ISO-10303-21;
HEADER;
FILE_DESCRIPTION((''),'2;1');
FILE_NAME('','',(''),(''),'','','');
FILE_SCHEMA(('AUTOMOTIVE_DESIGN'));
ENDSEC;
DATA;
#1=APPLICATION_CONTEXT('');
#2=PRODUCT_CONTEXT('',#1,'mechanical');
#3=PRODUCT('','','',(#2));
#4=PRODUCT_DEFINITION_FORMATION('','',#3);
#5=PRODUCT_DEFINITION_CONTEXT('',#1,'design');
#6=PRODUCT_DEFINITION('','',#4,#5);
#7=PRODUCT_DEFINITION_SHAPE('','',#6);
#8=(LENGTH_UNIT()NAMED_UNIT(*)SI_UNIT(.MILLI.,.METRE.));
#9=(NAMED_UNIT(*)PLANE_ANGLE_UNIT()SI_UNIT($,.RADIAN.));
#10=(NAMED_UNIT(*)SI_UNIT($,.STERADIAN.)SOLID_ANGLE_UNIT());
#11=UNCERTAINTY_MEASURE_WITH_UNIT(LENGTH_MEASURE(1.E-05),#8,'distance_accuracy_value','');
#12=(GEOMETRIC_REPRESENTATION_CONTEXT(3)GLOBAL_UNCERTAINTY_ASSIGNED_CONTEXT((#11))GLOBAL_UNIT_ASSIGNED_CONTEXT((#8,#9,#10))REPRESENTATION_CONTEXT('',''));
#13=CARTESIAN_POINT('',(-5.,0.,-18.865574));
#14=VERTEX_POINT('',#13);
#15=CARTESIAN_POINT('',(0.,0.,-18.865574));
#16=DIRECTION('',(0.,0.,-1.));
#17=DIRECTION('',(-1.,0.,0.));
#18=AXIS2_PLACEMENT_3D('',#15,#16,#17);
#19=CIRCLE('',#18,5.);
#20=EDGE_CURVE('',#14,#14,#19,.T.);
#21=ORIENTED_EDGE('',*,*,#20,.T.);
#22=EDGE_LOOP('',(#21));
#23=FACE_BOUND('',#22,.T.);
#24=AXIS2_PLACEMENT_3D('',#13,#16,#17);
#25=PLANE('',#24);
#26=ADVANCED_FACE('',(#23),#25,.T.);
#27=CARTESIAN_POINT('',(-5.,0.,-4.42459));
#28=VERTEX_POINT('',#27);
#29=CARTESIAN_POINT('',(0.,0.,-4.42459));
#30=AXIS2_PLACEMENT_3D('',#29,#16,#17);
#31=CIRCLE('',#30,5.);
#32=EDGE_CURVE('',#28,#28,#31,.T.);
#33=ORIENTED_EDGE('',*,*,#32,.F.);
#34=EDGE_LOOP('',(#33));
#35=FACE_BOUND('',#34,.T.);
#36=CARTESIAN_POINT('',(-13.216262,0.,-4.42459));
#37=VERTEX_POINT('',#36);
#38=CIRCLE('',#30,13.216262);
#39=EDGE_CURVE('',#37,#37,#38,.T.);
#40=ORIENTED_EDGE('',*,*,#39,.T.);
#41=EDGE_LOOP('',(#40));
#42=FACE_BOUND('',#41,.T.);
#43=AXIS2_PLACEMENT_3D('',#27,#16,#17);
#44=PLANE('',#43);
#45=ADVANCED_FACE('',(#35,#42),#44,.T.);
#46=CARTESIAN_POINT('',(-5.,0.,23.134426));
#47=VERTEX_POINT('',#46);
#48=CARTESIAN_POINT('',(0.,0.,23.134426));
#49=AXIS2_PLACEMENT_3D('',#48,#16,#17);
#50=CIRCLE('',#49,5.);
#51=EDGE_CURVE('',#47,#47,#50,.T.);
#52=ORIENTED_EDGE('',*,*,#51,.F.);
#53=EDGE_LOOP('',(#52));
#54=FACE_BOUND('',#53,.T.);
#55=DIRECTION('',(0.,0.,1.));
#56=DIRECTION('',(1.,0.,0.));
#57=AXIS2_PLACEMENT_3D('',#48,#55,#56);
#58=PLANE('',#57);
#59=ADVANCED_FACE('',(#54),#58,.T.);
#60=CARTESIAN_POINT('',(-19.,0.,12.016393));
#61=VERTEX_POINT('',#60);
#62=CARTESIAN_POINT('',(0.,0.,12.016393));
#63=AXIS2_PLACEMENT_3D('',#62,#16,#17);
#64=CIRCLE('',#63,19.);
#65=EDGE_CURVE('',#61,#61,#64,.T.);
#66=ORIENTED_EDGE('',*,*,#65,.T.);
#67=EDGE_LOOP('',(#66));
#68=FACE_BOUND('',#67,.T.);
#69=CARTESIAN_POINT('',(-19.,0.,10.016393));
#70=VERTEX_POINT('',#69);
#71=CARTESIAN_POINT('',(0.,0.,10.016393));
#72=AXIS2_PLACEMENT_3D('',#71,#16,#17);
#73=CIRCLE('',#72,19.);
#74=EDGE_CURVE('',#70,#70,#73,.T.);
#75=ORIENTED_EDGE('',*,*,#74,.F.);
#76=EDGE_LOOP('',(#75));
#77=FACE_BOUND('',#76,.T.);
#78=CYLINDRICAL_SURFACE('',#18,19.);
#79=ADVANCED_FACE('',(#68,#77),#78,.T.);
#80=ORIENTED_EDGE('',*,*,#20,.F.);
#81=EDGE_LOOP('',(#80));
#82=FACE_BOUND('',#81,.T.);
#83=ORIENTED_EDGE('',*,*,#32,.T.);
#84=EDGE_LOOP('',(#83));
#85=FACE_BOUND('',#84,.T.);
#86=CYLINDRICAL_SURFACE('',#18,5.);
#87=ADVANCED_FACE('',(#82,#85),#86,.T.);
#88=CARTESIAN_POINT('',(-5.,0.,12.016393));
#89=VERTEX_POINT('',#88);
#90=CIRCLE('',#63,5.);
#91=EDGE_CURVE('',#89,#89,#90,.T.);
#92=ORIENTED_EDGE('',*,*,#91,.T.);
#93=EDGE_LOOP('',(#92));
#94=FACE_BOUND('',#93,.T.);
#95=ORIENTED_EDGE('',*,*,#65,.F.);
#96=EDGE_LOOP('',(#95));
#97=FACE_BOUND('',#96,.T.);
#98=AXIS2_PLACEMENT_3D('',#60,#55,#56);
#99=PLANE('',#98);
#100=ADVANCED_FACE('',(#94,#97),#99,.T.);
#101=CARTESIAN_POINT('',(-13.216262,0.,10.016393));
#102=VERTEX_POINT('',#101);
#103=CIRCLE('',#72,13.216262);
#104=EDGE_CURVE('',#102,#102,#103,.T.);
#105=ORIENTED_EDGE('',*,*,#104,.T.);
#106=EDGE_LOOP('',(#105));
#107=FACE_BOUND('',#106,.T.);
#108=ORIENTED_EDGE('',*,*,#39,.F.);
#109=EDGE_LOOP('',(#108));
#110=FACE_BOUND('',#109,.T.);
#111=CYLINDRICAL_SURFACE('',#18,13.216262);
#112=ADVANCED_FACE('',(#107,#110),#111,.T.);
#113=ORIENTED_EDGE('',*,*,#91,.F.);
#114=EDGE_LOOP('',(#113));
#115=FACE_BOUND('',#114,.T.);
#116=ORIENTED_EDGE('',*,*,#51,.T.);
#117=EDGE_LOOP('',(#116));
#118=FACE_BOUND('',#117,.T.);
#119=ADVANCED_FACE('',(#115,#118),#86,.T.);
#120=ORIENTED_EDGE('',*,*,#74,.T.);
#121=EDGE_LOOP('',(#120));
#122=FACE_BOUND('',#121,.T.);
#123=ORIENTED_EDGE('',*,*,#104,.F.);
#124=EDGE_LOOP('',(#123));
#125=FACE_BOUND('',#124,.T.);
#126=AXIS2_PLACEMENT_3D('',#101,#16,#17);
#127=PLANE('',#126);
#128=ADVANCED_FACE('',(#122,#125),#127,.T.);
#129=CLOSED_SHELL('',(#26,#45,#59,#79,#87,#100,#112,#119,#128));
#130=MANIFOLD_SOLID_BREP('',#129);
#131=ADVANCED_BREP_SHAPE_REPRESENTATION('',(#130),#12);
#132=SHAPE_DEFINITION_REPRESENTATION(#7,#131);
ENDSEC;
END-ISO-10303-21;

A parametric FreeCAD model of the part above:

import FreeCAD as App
import Part
import Sketcher
Q = App.Units.Quantity


def add_polygon(sketch, points):
    """Adds a closed chain of lines whose ends are joined by coincident constraints."""
    first, n = sketch.GeometryCount, len(points)
    for a, b in zip(points, points[1:] + points[:1]):
        sketch.addGeometry(Part.LineSegment(App.Vector(*a, 0), App.Vector(*b, 0)), False)
    for i in range(n):
        sketch.addConstraint(Sketcher.Constraint("Coincident", first + i, 2, first + (i + 1) % n, 1))

doc = App.newDocument("Part")
params = doc.addObject("Spreadsheet::Sheet", "Params")
for row, (alias, value) in enumerate([
    ("sketch1_width", "5 mm"),
    ("sketch1_width2", "14 mm"),
    ("sketch1_height", "2 mm"),
    ("sketch1_height2", "42 mm"),
    ("revolution_angle", "360 deg"),
], start=1):
    params.set(f"A{row}", alias)
    params.set(f"B{row}", "=" + value)
    params.setAlias(f"B{row}", alias)

body = doc.addObject("PartDesign::Body", "Body")

sketch1 = doc.addObject("Sketcher::SketchObject", "Sketch")
body.addObject(sketch1)
sketch1.AttachmentSupport = (doc.XZ_Plane, [""])
sketch1.MapMode = "FlatFace"
add_polygon(sketch1, [(0, -18.9), (-5, -18.9), (-5, -4.4), (-13.2, -4.4), (-13.2, 10), (-19, 10), (-19, 12), (-5, 12), (-5, 23.1), (0, 23.1)])
sketch1.addConstraint([
    Sketcher.Constraint("Horizontal", 0),
    Sketcher.Constraint("Vertical", 1),
    Sketcher.Constraint("Horizontal", 2),
    Sketcher.Constraint("Vertical", 3),
    Sketcher.Constraint("Horizontal", 4),
    Sketcher.Constraint("Vertical", 5),
    Sketcher.Constraint("Horizontal", 6),
    Sketcher.Constraint("Vertical", 7),
    Sketcher.Constraint("Horizontal", 8),
    Sketcher.Constraint("Vertical", 9),
    Sketcher.Constraint("PointOnObject", 8, 2, -2),
    Sketcher.Constraint("Vertical", 1, 2, 6, 2),
    Sketcher.Constraint("Equal", 1, 3),
    Sketcher.Constraint("DistanceX", 0, 2, 0, 1, Q("5 mm")),
    Sketcher.Constraint("DistanceX", 6, 1, 6, 2, Q("14 mm")),
    Sketcher.Constraint("DistanceY", 5, 1, 5, 2, Q("2 mm")),
    Sketcher.Constraint("DistanceY", 9, 2, 9, 1, Q("42 mm")),
    Sketcher.Constraint("DistanceX", 2, 2, 2, 1, Q("8.216262 mm")),
    Sketcher.Constraint("DistanceY", 1, 1, 1, 2, Q("14.440984 mm")),
    Sketcher.Constraint("DistanceY", 1, 2, -1, 1, Q("4.42459 mm")),
])
sketch1.setExpression("Constraints[23]", "Params.sketch1_width")
sketch1.setExpression("Constraints[24]", "Params.sketch1_width2")
sketch1.setExpression("Constraints[25]", "Params.sketch1_height")
sketch1.setExpression("Constraints[26]", "Params.sketch1_height2")
revolution = doc.addObject("PartDesign::Revolution", "Revolution")
body.addObject(revolution)
revolution.Profile = sketch1
revolution.ReferenceAxis = (sketch1, ["V_Axis"])
revolution.setExpression("Angle", "Params.revolution_angle")

doc.recompute()
